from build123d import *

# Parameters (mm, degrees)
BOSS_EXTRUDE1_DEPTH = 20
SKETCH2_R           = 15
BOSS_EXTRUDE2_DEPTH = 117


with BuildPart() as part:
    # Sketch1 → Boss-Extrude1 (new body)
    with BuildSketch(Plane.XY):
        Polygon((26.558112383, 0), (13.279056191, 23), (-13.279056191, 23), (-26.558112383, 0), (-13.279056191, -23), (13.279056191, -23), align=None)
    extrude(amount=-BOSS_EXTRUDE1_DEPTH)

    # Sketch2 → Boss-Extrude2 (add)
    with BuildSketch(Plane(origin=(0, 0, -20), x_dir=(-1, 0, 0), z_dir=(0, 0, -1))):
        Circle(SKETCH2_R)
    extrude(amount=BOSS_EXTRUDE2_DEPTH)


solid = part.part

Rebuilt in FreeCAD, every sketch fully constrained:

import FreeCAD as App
import Part
import Sketcher

V = App.Vector
Q = App.Units.Quantity


def add_polygon(sketch, points):
    """Adds a closed chain of lines whose ends are joined by coincident constraints."""
    first, n = sketch.GeometryCount, len(points)
    for a, b in zip(points, points[1:] + points[:1]):
        sketch.addGeometry(Part.LineSegment(App.Vector(*a, 0), App.Vector(*b, 0)), False)
    for i in range(n):
        sketch.addConstraint(Sketcher.Constraint("Coincident", first + i, 2, first + (i + 1) % n, 1))

doc = App.newDocument("Part")
params = doc.addObject("Spreadsheet::Sheet", "Params")
for row, (alias, value) in enumerate([
    ("pad1_length", "20 mm"),
    ("sketch2_diameter", "30 mm"),
    ("pad2_length", "117 mm"),
], start=1):
    params.set(f"A{row}", alias)
    params.set(f"B{row}", "=" + value)
    params.setAlias(f"B{row}", alias)

body = doc.addObject("PartDesign::Body", "Body")

# Sketch on XY plane
sketch1 = body.newObject("Sketcher::SketchObject", "Sketch")
sketch1.AttachmentSupport = (doc.getObject("XY_Plane"), [""])
sketch1.MapMode = "FlatFace"
add_polygon(sketch1, [(26.558112, 0), (13.279056, 23), (-13.279056, 23), (-26.558112, 0), (-13.279056, -23), (13.279056, -23)])  # lines 0-5
sketch1.addConstraint(Sketcher.Constraint("Horizontal", 1))
sketch1.addConstraint(Sketcher.Constraint("Horizontal", 4))
sketch1.addConstraint(Sketcher.Constraint("Symmetric", 0, 2, 3, 2, -1, 1))
sketch1.addConstraint(Sketcher.Constraint("Symmetric", 2, 2, 5, 2, -1, 1))
sketch1.addConstraint(Sketcher.Constraint("PointOnObject", 2, 2, -1))
sketch1.addConstraint(Sketcher.Constraint("Parallel", 2, 5))
sketch1.addConstraint(Sketcher.Constraint("Vertical", 1, 2, 3, 2))
sketch1.addConstraint(Sketcher.Constraint("Angle", 0, Q("120 deg")))
sketch1.addConstraint(Sketcher.Constraint("DistanceY", -1, 1, 0, 2, 23.0))
sketch1.addConstraint(Sketcher.Constraint("DistanceX", 1, 2, 1, 1, 26.558112))
pad1 = body.newObject("PartDesign::Pad", "Pad")
pad1.Profile = sketch1
pad1.setExpression("Length", "Params.pad1_length")
pad1.Reversed = True

# Sketch on XY plane
sketch2 = body.newObject("Sketcher::SketchObject", "Sketch001")
sketch2.AttachmentSupport = (doc.getObject("XY_Plane"), [""])
sketch2.MapMode = "FlatFace"
sketch2.AttachmentOffset = App.Placement(V(0, 0, -20), App.Rotation())
sketch2.addGeometry(Part.Circle(V(0, 0, 0), V(0, 0, 1), 15), False)
sketch2.addConstraint(Sketcher.Constraint("Coincident", 0, 3, -1, 1))
sketch2.addConstraint(Sketcher.Constraint("Diameter", 0, 30.0))
sketch2.setExpression("Constraints[1]", "Params.sketch2_diameter")
pad2 = body.newObject("PartDesign::Pad", "Pad001")
pad2.Profile = sketch2
pad2.setExpression("Length", "Params.pad2_length")
pad2.Reversed = True

doc.recompute()
